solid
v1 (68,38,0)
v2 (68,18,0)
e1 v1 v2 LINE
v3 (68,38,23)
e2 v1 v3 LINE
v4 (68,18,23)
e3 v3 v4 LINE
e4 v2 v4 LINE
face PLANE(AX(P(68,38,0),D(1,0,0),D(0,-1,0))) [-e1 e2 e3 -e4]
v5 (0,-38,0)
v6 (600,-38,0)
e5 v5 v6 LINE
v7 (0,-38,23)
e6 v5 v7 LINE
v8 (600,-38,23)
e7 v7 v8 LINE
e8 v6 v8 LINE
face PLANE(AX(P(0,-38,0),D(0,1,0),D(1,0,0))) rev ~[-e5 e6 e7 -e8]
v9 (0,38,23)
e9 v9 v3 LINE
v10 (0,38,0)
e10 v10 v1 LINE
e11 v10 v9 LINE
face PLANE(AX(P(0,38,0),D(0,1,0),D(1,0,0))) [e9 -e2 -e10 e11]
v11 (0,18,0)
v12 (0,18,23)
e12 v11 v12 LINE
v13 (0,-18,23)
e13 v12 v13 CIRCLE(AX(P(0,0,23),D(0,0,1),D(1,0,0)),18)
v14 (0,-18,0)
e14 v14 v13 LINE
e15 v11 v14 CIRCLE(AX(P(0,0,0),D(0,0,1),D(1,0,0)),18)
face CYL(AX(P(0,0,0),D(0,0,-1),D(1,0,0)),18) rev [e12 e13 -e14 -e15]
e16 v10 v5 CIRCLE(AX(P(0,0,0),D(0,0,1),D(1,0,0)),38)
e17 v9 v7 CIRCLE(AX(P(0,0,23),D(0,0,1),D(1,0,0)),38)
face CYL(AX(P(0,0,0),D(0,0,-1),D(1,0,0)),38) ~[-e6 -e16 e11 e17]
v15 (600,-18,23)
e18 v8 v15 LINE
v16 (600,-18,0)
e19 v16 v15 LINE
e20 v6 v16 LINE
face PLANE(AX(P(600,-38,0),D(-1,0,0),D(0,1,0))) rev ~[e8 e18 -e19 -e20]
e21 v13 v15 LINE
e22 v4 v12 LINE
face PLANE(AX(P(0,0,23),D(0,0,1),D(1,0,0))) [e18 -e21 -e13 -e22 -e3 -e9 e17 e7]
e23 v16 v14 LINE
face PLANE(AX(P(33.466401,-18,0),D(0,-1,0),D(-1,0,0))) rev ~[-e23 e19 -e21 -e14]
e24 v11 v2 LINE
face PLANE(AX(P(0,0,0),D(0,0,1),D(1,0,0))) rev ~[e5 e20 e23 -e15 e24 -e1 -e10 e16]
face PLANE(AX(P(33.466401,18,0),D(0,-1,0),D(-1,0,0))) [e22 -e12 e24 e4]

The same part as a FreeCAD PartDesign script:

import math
import FreeCAD as App
import Part
import Sketcher

V = App.Vector

doc = App.newDocument("Part")
body = doc.addObject("PartDesign::Body", "Body")

sketch1 = doc.addObject("Sketcher::SketchObject", "Sketch")
body.addObject(sketch1)
sketch1.AttachmentSupport = (doc.XY_Plane, [""])
sketch1.MapMode = "FlatFace"
sketch1.addGeometry([
    Part.ArcOfCircle(Part.Circle(V(0, 0, 0), V(0, 0, 1), 18), math.radians(90), math.radians(270)),
    Part.LineSegment(V(0, 18, 0), V(68, 18, 0)),
    Part.LineSegment(V(68, 18, 0), V(68, 38, 0)),
    Part.LineSegment(V(68, 38, 0), V(0, 38, 0)),
    Part.ArcOfCircle(Part.Circle(V(0, 0, 0), V(0, 0, 1), 38), math.radians(90), math.radians(270)),
    Part.LineSegment(V(0, -38, 0), V(600, -38, 0)),
    Part.LineSegment(V(600, -38, 0), V(600, -18, 0)),
    Part.LineSegment(V(600, -18, 0), V(0, -18, 0)),
], False)
sketch1.addConstraint([
    Sketcher.Constraint("Tangent", 0, 1, 1, 1),
    Sketcher.Constraint("Coincident", 1, 2, 2, 1),
    Sketcher.Constraint("Coincident", 2, 2, 3, 1),
    Sketcher.Constraint("Tangent", 3, 2, 4, 1),
    Sketcher.Constraint("Tangent", 4, 2, 5, 1),
    Sketcher.Constraint("Coincident", 5, 2, 6, 1),
    Sketcher.Constraint("Coincident", 6, 2, 7, 1),
    Sketcher.Constraint("Tangent", 7, 2, 0, 2),
    Sketcher.Constraint("Horizontal", 1),
    Sketcher.Constraint("Vertical", 2),
    Sketcher.Constraint("Horizontal", 3),
    Sketcher.Constraint("Horizontal", 5),
    Sketcher.Constraint("Vertical", 6),
    Sketcher.Constraint("Horizontal", 7),
    Sketcher.Constraint("Coincident", 0, 3, -1, 1),
    Sketcher.Constraint("Coincident", 4, 3, -1, 1),
    Sketcher.Constraint("Radius", 4, 38.0),
    Sketcher.Constraint("DistanceX", 1, 1, 1, 2, 68.0),
    Sketcher.Constraint("DistanceX", 5, 1, 5, 2, 600.0),
    Sketcher.Constraint("DistanceY", 2, 1, 2, 2, 20.0),
])
pad1 = doc.addObject("PartDesign::Pad", "Pad")
body.addObject(pad1)
pad1.Profile = sketch1
pad1.Length = 23

doc.recompute()
